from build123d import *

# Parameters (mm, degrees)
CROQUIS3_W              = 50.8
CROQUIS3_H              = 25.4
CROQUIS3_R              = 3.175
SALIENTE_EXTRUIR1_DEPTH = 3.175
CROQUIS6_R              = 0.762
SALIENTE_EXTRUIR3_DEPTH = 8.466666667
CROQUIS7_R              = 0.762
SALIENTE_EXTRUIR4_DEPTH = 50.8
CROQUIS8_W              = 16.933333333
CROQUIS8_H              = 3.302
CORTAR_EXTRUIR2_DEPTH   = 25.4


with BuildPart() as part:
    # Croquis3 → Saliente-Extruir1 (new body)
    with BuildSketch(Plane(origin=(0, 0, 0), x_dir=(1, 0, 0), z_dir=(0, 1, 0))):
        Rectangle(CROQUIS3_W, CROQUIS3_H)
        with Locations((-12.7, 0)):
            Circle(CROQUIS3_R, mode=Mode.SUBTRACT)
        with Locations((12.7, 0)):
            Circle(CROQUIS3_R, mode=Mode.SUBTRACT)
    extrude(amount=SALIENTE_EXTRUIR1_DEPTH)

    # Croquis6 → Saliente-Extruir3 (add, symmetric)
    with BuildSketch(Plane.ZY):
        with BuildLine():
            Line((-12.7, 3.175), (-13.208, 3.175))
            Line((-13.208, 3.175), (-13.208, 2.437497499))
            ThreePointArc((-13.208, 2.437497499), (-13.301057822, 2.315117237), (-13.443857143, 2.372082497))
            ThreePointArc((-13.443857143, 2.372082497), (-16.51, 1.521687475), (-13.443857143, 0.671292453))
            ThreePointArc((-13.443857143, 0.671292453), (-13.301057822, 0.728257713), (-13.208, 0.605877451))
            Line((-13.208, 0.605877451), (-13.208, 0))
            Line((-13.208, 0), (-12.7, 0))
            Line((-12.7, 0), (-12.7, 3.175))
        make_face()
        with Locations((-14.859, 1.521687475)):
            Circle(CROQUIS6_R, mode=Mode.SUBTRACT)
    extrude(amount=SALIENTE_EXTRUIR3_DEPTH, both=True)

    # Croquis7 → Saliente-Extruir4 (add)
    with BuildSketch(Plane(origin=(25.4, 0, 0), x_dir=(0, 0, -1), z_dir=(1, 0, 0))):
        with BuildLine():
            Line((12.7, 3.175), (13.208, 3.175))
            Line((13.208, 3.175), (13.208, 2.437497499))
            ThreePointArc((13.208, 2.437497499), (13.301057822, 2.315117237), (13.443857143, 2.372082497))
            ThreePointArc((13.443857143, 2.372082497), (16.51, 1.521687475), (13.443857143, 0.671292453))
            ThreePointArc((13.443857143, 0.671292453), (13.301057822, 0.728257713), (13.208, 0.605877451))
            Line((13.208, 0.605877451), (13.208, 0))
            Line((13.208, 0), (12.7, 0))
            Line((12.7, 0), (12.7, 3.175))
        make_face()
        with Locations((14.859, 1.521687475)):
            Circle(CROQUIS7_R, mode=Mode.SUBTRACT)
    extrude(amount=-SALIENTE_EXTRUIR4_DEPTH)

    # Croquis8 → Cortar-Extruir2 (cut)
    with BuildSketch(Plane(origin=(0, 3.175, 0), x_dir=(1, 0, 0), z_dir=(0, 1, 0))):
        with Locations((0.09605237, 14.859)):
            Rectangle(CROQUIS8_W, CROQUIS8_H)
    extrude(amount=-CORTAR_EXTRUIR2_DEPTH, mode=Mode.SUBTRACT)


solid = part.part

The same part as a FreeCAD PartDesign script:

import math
import FreeCAD as App
import Part
import Sketcher
Q = App.Units.Quantity


def add_polygon(sketch, points):
    """Adds a closed chain of lines whose ends are joined by coincident constraints."""
    first, n = sketch.GeometryCount, len(points)
    for a, b in zip(points, points[1:] + points[:1]):
        sketch.addGeometry(Part.LineSegment(App.Vector(*a, 0), App.Vector(*b, 0)), False)
    for i in range(n):
        sketch.addConstraint(Sketcher.Constraint("Coincident", first + i, 2, first + (i + 1) % n, 1))

doc = App.newDocument("Part")
body = doc.addObject("PartDesign::Body", "Body")

# Sketch on XZ plane
sketch1 = doc.addObject("Sketcher::SketchObject", "Sketch")
body.addObject(sketch1)
sketch1.AttachmentSupport = (doc.XZ_Plane, [""])
sketch1.MapMode = "FlatFace"
add_polygon(sketch1, [(-25.4, -12.7), (-25.4, 12.7), (25.4, 12.7), (25.4, -12.7)])  # lines 0-3
sketch1.addGeometry(Part.Circle(App.Vector(-12.7, 0, 0), App.Vector(0, 0, 1), 3.2), False)  # 4
sketch1.addGeometry(Part.Circle(App.Vector(12.7, 0, 0), App.Vector(0, 0, 1), 3.2), False)  # 5
sketch1.addConstraint(Sketcher.Constraint("Vertical", 0))
sketch1.addConstraint(Sketcher.Constraint("Horizontal", 1))
sketch1.addConstraint(Sketcher.Constraint("Vertical", 2))
sketch1.addConstraint(Sketcher.Constraint("Horizontal", 3))
sketch1.addConstraint(Sketcher.Constraint("Equal", 4, 5))
sketch1.addConstraint(Sketcher.Constraint("Symmetric", 4, 3, 5, 3, -1, 1))
sketch1.addConstraint(Sketcher.Constraint("Symmetric", 0, 2, 2, 2, -1, 1))
sketch1.addConstraint(Sketcher.Constraint("PointOnObject", 4, 3, -1))
sketch1.addConstraint(Sketcher.Constraint("Diameter", 4, Q("0.25 in")))
sketch1.addConstraint(Sketcher.Constraint("DistanceX", 1, 1, 1, 2, Q("2 in")))
sketch1.addConstraint(Sketcher.Constraint("DistanceY", 0, 1, 0, 2, Q("1 in")))
sketch1.addConstraint(Sketcher.Constraint("DistanceX", 4, 3, 5, 3, Q("1 in")))
pad1 = doc.addObject("PartDesign::Pad", "Pad")
body.addObject(pad1)
pad1.Profile = sketch1
pad1.Length = Q("0.125 in")
pad1.Reversed = True

# Sketch on YZ plane
sketch2 = doc.addObject("Sketcher::SketchObject", "Sketch001")
body.addObject(sketch2)
sketch2.AttachmentSupport = (doc.YZ_Plane, [""])
sketch2.MapMode = "FlatFace"
sketch2.addGeometry(Part.LineSegment(App.Vector(3.17, -12.7, 0), App.Vector(3.17, -13.21, 0)), False)
sketch2.addGeometry(Part.LineSegment(App.Vector(3.17, -13.21, 0), App.Vector(2.44, -13.21, 0)), False)
sketch2.addGeometry(Part.ArcOfCircle(Part.Circle(App.Vector(2.44, -13.34, 0), App.Vector(0, 0, 1), 0.13), math.radians(90), math.radians(239)), False)
sketch2.addGeometry(Part.ArcOfCircle(Part.Circle(App.Vector(1.52, -14.86, 0), App.Vector(0, 0, 1), 1.65), math.radians(121), math.radians(419)), False)
sketch2.addGeometry(Part.ArcOfCircle(Part.Circle(App.Vector(0.61, -13.34, 0), App.Vector(0, 0, 1), 0.13), math.radians(-59), math.radians(90)), False)
sketch2.addGeometry(Part.LineSegment(App.Vector(0.61, -13.21, 0), App.Vector(0, -13.21, 0)), False)
sketch2.addGeometry(Part.LineSegment(App.Vector(0, -13.21, 0), App.Vector(0, -12.7, 0)), False)
sketch2.addGeometry(Part.LineSegment(App.Vector(0, -12.7, 0), App.Vector(3.17, -12.7, 0)), False)
sketch2.addGeometry(Part.Circle(App.Vector(1.52, -14.86, 0), App.Vector(0, 0, 1), 0.76), False)
sketch2.addConstraint(Sketcher.Constraint("Coincident", 0, 2, 1, 1))
sketch2.addConstraint(Sketcher.Constraint("Tangent", 1, 2, 2, 1))
sketch2.addConstraint(Sketcher.Constraint("Tangent", 2, 2, 3, 2))
sketch2.addConstraint(Sketcher.Constraint("Tangent", 3, 1, 4, 1))
sketch2.addConstraint(Sketcher.Constraint("Tangent", 4, 2, 5, 1))
sketch2.addConstraint(Sketcher.Constraint("Coincident", 5, 2, 6, 1))
sketch2.addConstraint(Sketcher.Constraint("Coincident", 6, 2, 7, 1))
sketch2.addConstraint(Sketcher.Constraint("Coincident", 7, 2, 0, 1))
sketch2.addConstraint(Sketcher.Constraint("Vertical", 0))
sketch2.addConstraint(Sketcher.Constraint("Horizontal", 1))
sketch2.addConstraint(Sketcher.Constraint("Horizontal", 5))
sketch2.addConstraint(Sketcher.Constraint("Vertical", 6))
sketch2.addConstraint(Sketcher.Constraint("Horizontal", 7))
sketch2.addConstraint(Sketcher.Constraint("Coincident", 8, 3, 3, 3))
sketch2.addConstraint(Sketcher.Constraint("Equal", 2, 4))
sketch2.addConstraint(Sketcher.Constraint("PointOnObject", 5, 2, -2))
sketch2.addConstraint(Sketcher.Constraint("Horizontal", 2, 3, 4, 3))
sketch2.addConstraint(Sketcher.Constraint("Diameter", 8, Q("0.06 in")))
sketch2.addConstraint(Sketcher.Constraint("Radius", 2, Q("0.005 in")))
sketch2.addConstraint(Sketcher.Constraint("Radius", 3, Q("0.065 in")))
sketch2.addConstraint(Sketcher.Constraint("DistanceY", 0, 2, 0, 1, Q("0.02 in")))
sketch2.addConstraint(Sketcher.Constraint("DistanceY", 6, 2, -1, 1, Q("0.5 in")))
sketch2.addConstraint(Sketcher.Constraint("DistanceX", 7, 1, 7, 2, Q("0.125 in")))
sketch2.addConstraint(Sketcher.Constraint("DistanceY", 3, 3, 2, 3, Q("0.06 in")))
sketch2.addConstraint(Sketcher.Constraint("DistanceX", 1, 2, 1, 1, 0.737503))
pad2 = doc.addObject("PartDesign::Pad", "Pad001")
body.addObject(pad2)
pad2.Profile = sketch2
pad2.Length = 16.933333
pad2.Midplane = True

# Sketch on YZ plane
sketch3 = doc.addObject("Sketcher::SketchObject", "Sketch002")
body.addObject(sketch3)
sketch3.AttachmentSupport = (doc.YZ_Plane, [""])
sketch3.MapMode = "FlatFace"
sketch3.AttachmentOffset = App.Placement(App.Vector(0, 0, 1 * 25.4), App.Rotation())
sketch3.addGeometry(Part.LineSegment(App.Vector(3.17, -13.21, 0), App.Vector(3.17, -12.7, 0)), False)
sketch3.addGeometry(Part.LineSegment(App.Vector(3.17, -12.7, 0), App.Vector(0, -12.7, 0)), False)
sketch3.addGeometry(Part.LineSegment(App.Vector(0, -12.7, 0), App.Vector(0, -13.21, 0)), False)
sketch3.addGeometry(Part.LineSegment(App.Vector(0, -13.21, 0), App.Vector(0.61, -13.21, 0)), False)
sketch3.addGeometry(Part.ArcOfCircle(Part.Circle(App.Vector(0.61, -13.34, 0), App.Vector(0, 0, 1), 0.13), math.radians(-59), math.radians(90)), False)
sketch3.addGeometry(Part.ArcOfCircle(Part.Circle(App.Vector(1.52, -14.86, 0), App.Vector(0, 0, 1), 1.65), math.radians(121), math.radians(419)), False)
sketch3.addGeometry(Part.ArcOfCircle(Part.Circle(App.Vector(2.44, -13.34, 0), App.Vector(0, 0, 1), 0.13), math.radians(90), math.radians(239)), False)
sketch3.addGeometry(Part.LineSegment(App.Vector(2.44, -13.21, 0), App.Vector(3.17, -13.21, 0)), False)
sketch3.addGeometry(Part.Circle(App.Vector(1.52, -14.86, 0), App.Vector(0, 0, 1), 0.76), False)
sketch3.addConstraint(Sketcher.Constraint("Coincident", 0, 2, 1, 1))
sketch3.addConstraint(Sketcher.Constraint("Coincident", 1, 2, 2, 1))
sketch3.addConstraint(Sketcher.Constraint("Coincident", 2, 2, 3, 1))
sketch3.addConstraint(Sketcher.Constraint("Tangent", 3, 2, 4, 2))
sketch3.addConstraint(Sketcher.Constraint("Tangent", 4, 1, 5, 1))
sketch3.addConstraint(Sketcher.Constraint("Tangent", 5, 2, 6, 2))
sketch3.addConstraint(Sketcher.Constraint("Tangent", 6, 1, 7, 1))
sketch3.addConstraint(Sketcher.Constraint("Coincident", 7, 2, 0, 1))
sketch3.addConstraint(Sketcher.Constraint("Vertical", 0))
sketch3.addConstraint(Sketcher.Constraint("Horizontal", 1))
sketch3.addConstraint(Sketcher.Constraint("Vertical", 2))
sketch3.addConstraint(Sketcher.Constraint("Horizontal", 3))
sketch3.addConstraint(Sketcher.Constraint("Horizontal", 7))
sketch3.addConstraint(Sketcher.Constraint("Coincident", 8, 3, 5, 3))
sketch3.addConstraint(Sketcher.Constraint("Equal", 4, 6))
sketch3.addConstraint(Sketcher.Constraint("PointOnObject", 1, 2, -2))
sketch3.addConstraint(Sketcher.Constraint("Horizontal", 4, 3, 6, 3))
sketch3.addConstraint(Sketcher.Constraint("Diameter", 8, Q("0.06 in")))
sketch3.addConstraint(Sketcher.Constraint("Radius", 4, Q("0.005 in")))
sketch3.addConstraint(Sketcher.Constraint("Radius", 5, Q("0.065 in")))
sketch3.addConstraint(Sketcher.Constraint("DistanceY", 0, 1, 0, 2, Q("0.02 in")))
sketch3.addConstraint(Sketcher.Constraint("DistanceY", 0, 2, -1, 1, Q("0.5 in")))
sketch3.addConstraint(Sketcher.Constraint("DistanceX", 1, 2, 1, 1, Q("0.125 in")))
sketch3.addConstraint(Sketcher.Constraint("DistanceY", 5, 3, 4, 3, Q("0.06 in")))
sketch3.addConstraint(Sketcher.Constraint("DistanceX", 3, 1, 3, 2, 0.605877))
pad3 = doc.addObject("PartDesign::Pad", "Pad002")
body.addObject(pad3)
pad3.Profile = sketch3
pad3.Length = Q("2 in")
pad3.Reversed = True

# Sketch on XZ plane
sketch4 = doc.addObject("Sketcher::SketchObject", "Sketch003")
body.addObject(sketch4)
sketch4.AttachmentSupport = (doc.XZ_Plane, [""])
sketch4.MapMode = "FlatFace"
sketch4.AttachmentOffset = App.Placement(App.Vector(0, 0, -0.125 * 25.4), App.Rotation())
add_polygon(sketch4, [(-8.4, -16.5), (-8.4, -13.2), (8.6, -13.2), (8.6, -16.5)])  # lines 0-3
sketch4.addConstraint(Sketcher.Constraint("Vertical", 0))
sketch4.addConstraint(Sketcher.Constraint("Horizontal", 1))
sketch4.addConstraint(Sketcher.Constraint("Vertical", 2))
sketch4.addConstraint(Sketcher.Constraint("Horizontal", 3))
sketch4.addConstraint(Sketcher.Constraint("DistanceY", 0, 1, 0, 2, Q("0.13 in")))
sketch4.addConstraint(Sketcher.Constraint("DistanceY", 0, 2, -1, 1, Q("0.52 in")))
sketch4.addConstraint(Sketcher.Constraint("DistanceX", 1, 1, 1, 2, 16.933333))
sketch4.addConstraint(Sketcher.Constraint("DistanceX", -1, 1, 1, 2, 8.562719))
pocket1 = doc.addObject("PartDesign::Pocket", "Pocket")
body.addObject(pocket1)
pocket1.Profile = sketch4
pocket1.Length = Q("1 in")
pocket1.Reversed = True

doc.recompute()
